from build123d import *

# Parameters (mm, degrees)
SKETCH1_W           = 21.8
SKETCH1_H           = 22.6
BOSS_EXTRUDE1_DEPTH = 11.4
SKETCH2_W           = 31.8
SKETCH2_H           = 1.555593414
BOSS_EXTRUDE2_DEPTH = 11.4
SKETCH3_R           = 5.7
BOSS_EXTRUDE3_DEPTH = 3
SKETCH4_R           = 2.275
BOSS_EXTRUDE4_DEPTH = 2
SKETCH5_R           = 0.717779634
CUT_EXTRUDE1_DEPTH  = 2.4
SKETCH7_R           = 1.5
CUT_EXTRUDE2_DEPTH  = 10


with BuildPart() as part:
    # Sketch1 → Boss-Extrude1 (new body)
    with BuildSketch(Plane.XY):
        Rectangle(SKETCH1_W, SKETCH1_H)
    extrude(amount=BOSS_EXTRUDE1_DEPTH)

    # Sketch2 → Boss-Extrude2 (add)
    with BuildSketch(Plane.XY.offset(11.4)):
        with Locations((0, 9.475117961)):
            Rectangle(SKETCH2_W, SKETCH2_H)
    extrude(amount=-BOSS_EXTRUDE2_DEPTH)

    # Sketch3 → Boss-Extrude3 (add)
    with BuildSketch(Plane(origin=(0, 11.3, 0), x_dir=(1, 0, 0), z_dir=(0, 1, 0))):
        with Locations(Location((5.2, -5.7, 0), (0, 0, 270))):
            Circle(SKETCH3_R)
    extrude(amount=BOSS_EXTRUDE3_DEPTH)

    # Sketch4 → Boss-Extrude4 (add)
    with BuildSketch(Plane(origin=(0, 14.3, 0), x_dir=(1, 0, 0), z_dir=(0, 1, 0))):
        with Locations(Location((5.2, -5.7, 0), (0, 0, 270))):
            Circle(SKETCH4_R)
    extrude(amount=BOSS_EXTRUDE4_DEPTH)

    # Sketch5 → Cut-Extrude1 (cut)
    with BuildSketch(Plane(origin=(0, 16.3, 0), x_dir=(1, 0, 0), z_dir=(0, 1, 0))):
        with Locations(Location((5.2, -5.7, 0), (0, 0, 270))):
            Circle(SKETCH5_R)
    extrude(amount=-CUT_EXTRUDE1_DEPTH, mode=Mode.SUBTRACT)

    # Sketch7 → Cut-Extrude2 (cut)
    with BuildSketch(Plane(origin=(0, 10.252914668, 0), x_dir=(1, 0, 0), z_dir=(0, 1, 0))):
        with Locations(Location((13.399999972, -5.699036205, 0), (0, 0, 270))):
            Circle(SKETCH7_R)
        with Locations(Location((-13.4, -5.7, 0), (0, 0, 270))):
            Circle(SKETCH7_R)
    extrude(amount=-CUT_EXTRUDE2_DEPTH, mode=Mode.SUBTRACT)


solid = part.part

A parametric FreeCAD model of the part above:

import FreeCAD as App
import Part
import Sketcher
Q = App.Units.Quantity

doc = App.newDocument("Part")
body = doc.addObject("PartDesign::Body", "Body")

# Sketch on XY plane
sketch1 = body.newObject("Sketcher::SketchObject", "Sketch")
sketch1.AttachmentSupport = (doc.getObject("XY_Plane"), [""])
sketch1.MapMode = "FlatFace"
sketch1.addGeometry([
    Part.LineSegment(App.Vector(-11, 11, 0), App.Vector(-11, -11, 0)),
    Part.LineSegment(App.Vector(-11, -11, 0), App.Vector(11, -11, 0)),
    Part.LineSegment(App.Vector(11, -11, 0), App.Vector(11, 11, 0)),
    Part.LineSegment(App.Vector(11, 11, 0), App.Vector(-11, 11, 0)),
], False)
sketch1.addConstraint([
    Sketcher.Constraint("Coincident", 0, 2, 1, 1),
    Sketcher.Constraint("Coincident", 1, 2, 2, 1),
    Sketcher.Constraint("Coincident", 2, 2, 3, 1),
    Sketcher.Constraint("Coincident", 3, 2, 0, 1),
    Sketcher.Constraint("Vertical", 0),
    Sketcher.Constraint("Horizontal", 1),
    Sketcher.Constraint("Vertical", 2),
    Sketcher.Constraint("Horizontal", 3),
    Sketcher.Constraint("Symmetric", 0, 2, 2, 2, -1, 1),
    Sketcher.Constraint("DistanceX", 1, 1, 1, 2, Q("21.8 mm")),
    Sketcher.Constraint("DistanceY", 0, 2, 0, 1, Q("22.6 mm")),
])
pad1 = body.newObject("PartDesign::Pad", "Pad")
pad1.Profile = sketch1
pad1.Length = 11.4

# Sketch on XY plane
sketch2 = body.newObject("Sketcher::SketchObject", "Sketch001")
sketch2.AttachmentSupport = (doc.getObject("XY_Plane"), [""])
sketch2.MapMode = "FlatFace"
sketch2.AttachmentOffset = App.Placement(App.Vector(0, 0, 11.4), App.Rotation())
sketch2.addGeometry([
    Part.LineSegment(App.Vector(-15.9, 10.3, 0), App.Vector(-15.9, 8.7, 0)),
    Part.LineSegment(App.Vector(-15.9, 8.7, 0), App.Vector(15.9, 8.7, 0)),
    Part.LineSegment(App.Vector(15.9, 8.7, 0), App.Vector(15.9, 10.3, 0)),
    Part.LineSegment(App.Vector(15.9, 10.3, 0), App.Vector(-15.9, 10.3, 0)),
], False)
sketch2.addConstraint([
    Sketcher.Constraint("Coincident", 0, 2, 1, 1),
    Sketcher.Constraint("Coincident", 1, 2, 2, 1),
    Sketcher.Constraint("Coincident", 2, 2, 3, 1),
    Sketcher.Constraint("Coincident", 3, 2, 0, 1),
    Sketcher.Constraint("Vertical", 0),
    Sketcher.Constraint("Horizontal", 1),
    Sketcher.Constraint("Vertical", 2),
    Sketcher.Constraint("Horizontal", 3),
    Sketcher.Constraint("DistanceX", 1, 1, 1, 2, Q("31.8 mm")),
    Sketcher.Constraint("DistanceX", 0, 2, -1, 1, Q("15.9 mm")),
    Sketcher.Constraint("DistanceY", 0, 2, 0, 1, Q("1.555593 mm")),
    Sketcher.Constraint("DistanceY", -1, 1, 0, 2, Q("8.697321 mm")),
])
pad2 = body.newObject("PartDesign::Pad", "Pad001")
pad2.Profile = sketch2
pad2.Length = 11.4
pad2.Reversed = True

# Sketch on XZ plane
sketch3 = body.newObject("Sketcher::SketchObject", "Sketch002")
sketch3.AttachmentSupport = (doc.getObject("XZ_Plane"), [""])
sketch3.MapMode = "FlatFace"
sketch3.AttachmentOffset = App.Placement(App.Vector(0, 0, -11.3), App.Rotation())
sketch3.addGeometry(Part.Circle(App.Vector(5, 6, 0), App.Vector(0, 0, 1), 6), False)
sketch3.addConstraint([
    Sketcher.Constraint("Diameter", 0, Q("11.4 mm")),
    Sketcher.Constraint("DistanceX", -1, 1, 0, 3, Q("5.2 mm")),
    Sketcher.Constraint("DistanceY", -1, 1, 0, 3, Q("5.7 mm")),
])
pad3 = body.newObject("PartDesign::Pad", "Pad002")
pad3.Profile = sketch3
pad3.Length = 3
pad3.Reversed = True

# Sketch on XZ plane
sketch4 = body.newObject("Sketcher::SketchObject", "Sketch003")
sketch4.AttachmentSupport = (doc.getObject("XZ_Plane"), [""])
sketch4.MapMode = "FlatFace"
sketch4.AttachmentOffset = App.Placement(App.Vector(0, 0, -14.3), App.Rotation())
sketch4.addGeometry(Part.Circle(App.Vector(5.2, 5.7, 0), App.Vector(0, 0, 1), 2.3), False)
sketch4.addConstraint([
    Sketcher.Constraint("Diameter", 0, Q("4.55 mm")),
    Sketcher.Constraint("DistanceX", -1, 1, 0, 3, Q("5.2 mm")),
    Sketcher.Constraint("DistanceY", -1, 1, 0, 3, Q("5.7 mm")),
])
pad4 = body.newObject("PartDesign::Pad", "Pad003")
pad4.Profile = sketch4
pad4.Length = 2
pad4.Reversed = True

# Sketch on XZ plane
sketch5 = body.newObject("Sketcher::SketchObject", "Sketch004")
sketch5.AttachmentSupport = (doc.getObject("XZ_Plane"), [""])
sketch5.MapMode = "FlatFace"
sketch5.AttachmentOffset = App.Placement(App.Vector(0, 0, -16.3), App.Rotation())
sketch5.addGeometry(Part.Circle(App.Vector(5.2, 5.7, 0), App.Vector(0, 0, 1), 0.7), False)
sketch5.addConstraint([
    Sketcher.Constraint("DistanceX", -1, 1, 0, 3, Q("5.2 mm")),
    Sketcher.Constraint("DistanceY", -1, 1, 0, 3, Q("5.7 mm")),
    Sketcher.Constraint("Diameter", 0, Q("1.435559 mm")),
])
pocket1 = body.newObject("PartDesign::Pocket", "Pocket")
pocket1.Profile = sketch5
pocket1.Length = 2.4
pocket1.Reversed = True

# Sketch on XZ plane
sketch6 = body.newObject("Sketcher::SketchObject", "Sketch005")
sketch6.AttachmentSupport = (doc.getObject("XZ_Plane"), [""])
sketch6.MapMode = "FlatFace"
sketch6.AttachmentOffset = App.Placement(App.Vector(0, 0, -10.252915), App.Rotation())
sketch6.addGeometry([
    Part.Circle(App.Vector(13.4, 5.7, 0), App.Vector(0, 0, 1), 1.5),
    Part.Circle(App.Vector(-13.4, 5.7, 0), App.Vector(0, 0, 1), 1.5),
], False)
sketch6.addConstraint([
    Sketcher.Constraint("Equal", 0, 1),
    Sketcher.Constraint("Diameter", 0, Q("3 mm")),
    Sketcher.Constraint("DistanceX", -1, 1, 0, 3, Q("13.4 mm")),
    Sketcher.Constraint("DistanceX", 1, 3, -1, 1, Q("13.4 mm")),
    Sketcher.Constraint("DistanceY", -1, 1, 1, 3, Q("5.7 mm")),
    Sketcher.Constraint("DistanceY", -1, 1, 0, 3, Q("5.699036 mm")),
])
pocket2 = body.newObject("PartDesign::Pocket", "Pocket001")
pocket2.Profile = sketch6
pocket2.Length = 10
pocket2.Reversed = True

doc.recompute()
